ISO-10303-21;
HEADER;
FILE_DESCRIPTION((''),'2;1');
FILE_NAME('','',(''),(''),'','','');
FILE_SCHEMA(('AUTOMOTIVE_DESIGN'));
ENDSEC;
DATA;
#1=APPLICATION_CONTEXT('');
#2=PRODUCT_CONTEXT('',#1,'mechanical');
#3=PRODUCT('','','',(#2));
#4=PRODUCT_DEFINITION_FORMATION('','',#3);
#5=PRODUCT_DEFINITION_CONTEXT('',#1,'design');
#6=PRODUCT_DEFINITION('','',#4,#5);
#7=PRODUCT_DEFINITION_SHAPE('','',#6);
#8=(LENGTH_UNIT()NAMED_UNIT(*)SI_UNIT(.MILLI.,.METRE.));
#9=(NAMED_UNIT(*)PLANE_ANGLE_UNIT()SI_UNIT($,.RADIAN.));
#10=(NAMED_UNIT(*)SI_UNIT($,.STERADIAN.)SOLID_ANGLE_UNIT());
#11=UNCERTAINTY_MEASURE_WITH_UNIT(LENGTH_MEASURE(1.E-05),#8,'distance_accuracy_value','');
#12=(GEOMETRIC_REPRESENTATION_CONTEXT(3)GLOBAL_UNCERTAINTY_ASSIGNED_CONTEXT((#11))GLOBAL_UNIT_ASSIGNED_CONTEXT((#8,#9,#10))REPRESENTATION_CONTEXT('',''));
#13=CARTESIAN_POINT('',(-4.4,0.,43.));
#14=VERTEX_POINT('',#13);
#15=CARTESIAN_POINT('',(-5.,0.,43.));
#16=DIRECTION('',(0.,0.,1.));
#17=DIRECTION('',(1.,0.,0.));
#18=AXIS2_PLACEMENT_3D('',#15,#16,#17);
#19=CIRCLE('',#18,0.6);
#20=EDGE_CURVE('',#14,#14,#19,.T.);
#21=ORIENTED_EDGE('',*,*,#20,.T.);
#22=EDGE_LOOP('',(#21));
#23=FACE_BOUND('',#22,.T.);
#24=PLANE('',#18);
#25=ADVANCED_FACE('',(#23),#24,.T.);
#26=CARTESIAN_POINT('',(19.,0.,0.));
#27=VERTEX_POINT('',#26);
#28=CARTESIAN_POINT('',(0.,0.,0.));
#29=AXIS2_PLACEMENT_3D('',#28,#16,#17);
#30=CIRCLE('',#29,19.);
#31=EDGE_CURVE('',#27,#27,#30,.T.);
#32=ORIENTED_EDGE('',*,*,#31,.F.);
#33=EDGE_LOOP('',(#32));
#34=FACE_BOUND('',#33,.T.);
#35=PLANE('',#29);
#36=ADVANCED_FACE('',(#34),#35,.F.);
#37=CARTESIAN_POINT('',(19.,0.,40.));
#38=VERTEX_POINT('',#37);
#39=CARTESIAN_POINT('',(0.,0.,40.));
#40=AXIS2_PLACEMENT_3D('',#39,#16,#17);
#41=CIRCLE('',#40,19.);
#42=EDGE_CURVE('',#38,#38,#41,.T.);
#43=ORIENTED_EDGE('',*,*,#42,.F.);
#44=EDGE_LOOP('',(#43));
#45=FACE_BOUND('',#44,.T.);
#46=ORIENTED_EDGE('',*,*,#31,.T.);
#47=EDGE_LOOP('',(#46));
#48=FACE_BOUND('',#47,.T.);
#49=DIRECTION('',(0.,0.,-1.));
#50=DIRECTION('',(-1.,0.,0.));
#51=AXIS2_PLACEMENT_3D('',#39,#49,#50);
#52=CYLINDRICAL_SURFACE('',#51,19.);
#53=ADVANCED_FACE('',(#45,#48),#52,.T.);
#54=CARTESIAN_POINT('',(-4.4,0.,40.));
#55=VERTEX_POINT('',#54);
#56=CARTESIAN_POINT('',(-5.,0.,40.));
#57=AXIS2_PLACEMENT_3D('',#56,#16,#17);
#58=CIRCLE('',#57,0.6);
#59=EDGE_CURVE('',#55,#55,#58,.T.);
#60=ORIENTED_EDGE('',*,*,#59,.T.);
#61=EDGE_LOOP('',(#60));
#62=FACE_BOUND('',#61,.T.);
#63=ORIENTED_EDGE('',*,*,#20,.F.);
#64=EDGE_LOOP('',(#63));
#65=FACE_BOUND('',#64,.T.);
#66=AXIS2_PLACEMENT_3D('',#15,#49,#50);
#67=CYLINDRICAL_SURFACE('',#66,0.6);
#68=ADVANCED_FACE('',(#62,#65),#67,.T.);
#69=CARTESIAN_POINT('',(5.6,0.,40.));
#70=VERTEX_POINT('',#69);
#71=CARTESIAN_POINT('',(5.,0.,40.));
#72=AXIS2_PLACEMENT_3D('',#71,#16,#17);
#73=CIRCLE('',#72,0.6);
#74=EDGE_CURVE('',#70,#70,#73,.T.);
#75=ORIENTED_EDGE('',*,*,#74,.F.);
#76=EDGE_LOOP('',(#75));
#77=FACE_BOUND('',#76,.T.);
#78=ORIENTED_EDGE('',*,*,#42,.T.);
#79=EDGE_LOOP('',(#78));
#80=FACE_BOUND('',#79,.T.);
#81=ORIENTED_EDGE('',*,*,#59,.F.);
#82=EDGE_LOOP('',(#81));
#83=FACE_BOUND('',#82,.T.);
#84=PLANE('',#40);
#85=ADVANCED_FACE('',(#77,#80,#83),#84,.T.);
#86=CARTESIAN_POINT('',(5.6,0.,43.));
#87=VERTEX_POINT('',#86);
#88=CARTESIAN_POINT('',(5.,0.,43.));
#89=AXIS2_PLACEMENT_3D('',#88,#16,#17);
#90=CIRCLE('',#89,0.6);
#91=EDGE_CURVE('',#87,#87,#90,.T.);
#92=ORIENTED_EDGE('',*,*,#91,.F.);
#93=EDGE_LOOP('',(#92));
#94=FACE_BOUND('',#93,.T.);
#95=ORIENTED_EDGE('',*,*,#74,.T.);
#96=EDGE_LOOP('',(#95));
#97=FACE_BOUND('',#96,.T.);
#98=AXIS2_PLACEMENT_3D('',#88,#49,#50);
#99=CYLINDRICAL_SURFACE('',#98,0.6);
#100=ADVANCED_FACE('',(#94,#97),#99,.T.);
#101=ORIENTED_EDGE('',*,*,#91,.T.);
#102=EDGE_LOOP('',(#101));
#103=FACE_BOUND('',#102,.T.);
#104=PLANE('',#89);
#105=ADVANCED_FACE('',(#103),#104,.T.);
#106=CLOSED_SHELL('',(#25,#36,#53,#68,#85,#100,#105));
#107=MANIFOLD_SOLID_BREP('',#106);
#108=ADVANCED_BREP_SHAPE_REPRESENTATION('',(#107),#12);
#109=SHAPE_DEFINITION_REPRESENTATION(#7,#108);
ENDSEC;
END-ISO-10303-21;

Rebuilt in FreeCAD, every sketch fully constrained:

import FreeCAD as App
import Part
import Sketcher

doc = App.newDocument("Part")
params = doc.addObject("Spreadsheet::Sheet", "Params")
for row, (alias, value) in enumerate([
    ("sketch1_diameter", "38 mm"),
    ("pad1_length", "40 mm"),
    ("sketch2_diameter", "1.2 mm"),
    ("pad2_length", "3 mm"),
], start=1):
    params.set(f"A{row}", alias)
    params.set(f"B{row}", "=" + value)
    params.setAlias(f"B{row}", alias)

body = doc.addObject("PartDesign::Body", "Body")

sketch1 = body.newObject("Sketcher::SketchObject", "Sketch")
sketch1.AttachmentSupport = (doc.getObject("XY_Plane"), [""])
sketch1.MapMode = "FlatFace"
sketch1.addGeometry(Part.Circle(App.Vector(0, 0, 0), App.Vector(0, 0, 1), 19), False)
sketch1.addConstraint(Sketcher.Constraint("Coincident", 0, 3, -1, 1))
sketch1.addConstraint(Sketcher.Constraint("Diameter", 0, 38.0))
sketch1.setExpression("Constraints[1]", "Params.sketch1_diameter")
pad1 = body.newObject("PartDesign::Pad", "Pad")
pad1.Profile = sketch1
pad1.setExpression("Length", "Params.pad1_length")

sketch2 = body.newObject("Sketcher::SketchObject", "Sketch001")
sketch2.AttachmentSupport = (doc.getObject("XY_Plane"), [""])
sketch2.MapMode = "FlatFace"
sketch2.AttachmentOffset = App.Placement(App.Vector(0, 0, 40), App.Rotation())
sketch2.addGeometry(Part.Circle(App.Vector(-5, 0, 0), App.Vector(0, 0, 1), 0.6), False)
sketch2.addGeometry(Part.Circle(App.Vector(5, 0, 0), App.Vector(0, 0, 1), 0.6), False)
sketch2.addConstraint(Sketcher.Constraint("Equal", 0, 1))
sketch2.addConstraint(Sketcher.Constraint("Symmetric", 0, 3, 1, 3, -1, 1))
sketch2.addConstraint(Sketcher.Constraint("PointOnObject", 0, 3, -1))
sketch2.addConstraint(Sketcher.Constraint("Diameter", 0, 1.2))
sketch2.addConstraint(Sketcher.Constraint("DistanceX", 0, 3, -1, 1, 5.0))
sketch2.setExpression("Constraints[3]", "Params.sketch2_diameter")
pad2 = body.newObject("PartDesign::Pad", "Pad001")
pad2.Profile = sketch2
pad2.setExpression("Length", "Params.pad2_length")

doc.recompute()
